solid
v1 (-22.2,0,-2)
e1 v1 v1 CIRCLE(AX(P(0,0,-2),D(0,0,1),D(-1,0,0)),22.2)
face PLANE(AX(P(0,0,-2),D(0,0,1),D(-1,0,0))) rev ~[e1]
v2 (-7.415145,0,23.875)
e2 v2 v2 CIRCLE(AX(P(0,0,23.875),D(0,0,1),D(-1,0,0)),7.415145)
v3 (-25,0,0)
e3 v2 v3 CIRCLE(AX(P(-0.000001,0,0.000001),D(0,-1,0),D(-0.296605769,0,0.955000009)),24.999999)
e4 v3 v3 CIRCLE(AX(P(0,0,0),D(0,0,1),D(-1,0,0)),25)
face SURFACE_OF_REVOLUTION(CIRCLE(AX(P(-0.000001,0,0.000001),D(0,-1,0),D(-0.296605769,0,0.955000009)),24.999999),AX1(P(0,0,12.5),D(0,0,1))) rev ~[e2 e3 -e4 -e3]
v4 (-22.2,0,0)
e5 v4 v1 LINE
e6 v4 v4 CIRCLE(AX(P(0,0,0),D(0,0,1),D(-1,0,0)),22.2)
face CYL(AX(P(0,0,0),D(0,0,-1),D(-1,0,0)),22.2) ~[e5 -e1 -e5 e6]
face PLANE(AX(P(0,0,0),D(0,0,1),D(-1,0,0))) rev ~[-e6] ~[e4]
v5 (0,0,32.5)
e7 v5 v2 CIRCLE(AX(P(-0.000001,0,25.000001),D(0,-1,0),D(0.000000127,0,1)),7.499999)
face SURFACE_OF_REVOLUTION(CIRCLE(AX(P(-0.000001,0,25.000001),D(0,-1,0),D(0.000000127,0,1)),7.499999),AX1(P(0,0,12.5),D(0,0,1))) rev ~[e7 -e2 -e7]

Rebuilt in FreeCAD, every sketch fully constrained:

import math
import FreeCAD as App
import Part
import Sketcher

V = App.Vector

doc = App.newDocument("Part")
body = doc.addObject("PartDesign::Body", "Body")

# Sketch on XZ plane
sketch1 = doc.addObject("Sketcher::SketchObject", "Sketch")
body.addObject(sketch1)
sketch1.AttachmentSupport = (doc.XZ_Plane, [""])
sketch1.MapMode = "FlatFace"
sketch1.addGeometry([
    Part.ArcOfCircle(Part.Circle(V(0, 25, 0), V(0, 0, 1), 7.5), math.radians(90), math.radians(189)),  # 0
    Part.ArcOfCircle(Part.Circle(V(0, 0, 0), V(0, 0, 1), 25), math.radians(107), math.radians(180)),  # 1
    Part.LineSegment(V(-25, 0, 0), V(-22.2, 0, 0)),  # 2
    Part.LineSegment(V(-22.2, 0, 0), V(-22.2, -2, 0)),  # 3
    Part.LineSegment(V(-22.2, -2, 0), V(0, -2, 0)),  # 4
    Part.LineSegment(V(0, -2, 0), V(0, 32.5, 0)),  # 5
], False)
sketch1.addConstraint([
    Sketcher.Constraint("Coincident", 0, 2, 1, 1),
    Sketcher.Constraint("Coincident", 1, 2, 2, 1),
    Sketcher.Constraint("Coincident", 2, 2, 3, 1),
    Sketcher.Constraint("Coincident", 3, 2, 4, 1),
    Sketcher.Constraint("Coincident", 4, 2, 5, 1),
    Sketcher.Constraint("Coincident", 5, 2, 0, 1),
    Sketcher.Constraint("Horizontal", 2),
    Sketcher.Constraint("Vertical", 3),
    Sketcher.Constraint("Horizontal", 4),
    Sketcher.Constraint("Vertical", 5),
    Sketcher.Constraint("Coincident", 1, 3, -1, 1),
    Sketcher.Constraint("PointOnObject", 0, 3, -2),
    Sketcher.Constraint("PointOnObject", 1, 2, -1),
    Sketcher.Constraint("PointOnObject", 4, 2, -2),
    Sketcher.Constraint("Radius", 1, 24.999999),
    Sketcher.Constraint("Radius", 0, 7.499999),
    Sketcher.Constraint("DistanceY", 3, 2, 3, 1, 2.0),
    Sketcher.Constraint("DistanceX", 2, 1, 2, 2, 2.8),
    Sketcher.Constraint("DistanceY", 5, 1, 5, 2, 34.5),
])
revolution = doc.addObject("PartDesign::Revolution", "Revolution")
body.addObject(revolution)
revolution.Profile = sketch1
revolution.ReferenceAxis = (sketch1, ["V_Axis"])
revolution.Angle = 360

doc.recompute()
